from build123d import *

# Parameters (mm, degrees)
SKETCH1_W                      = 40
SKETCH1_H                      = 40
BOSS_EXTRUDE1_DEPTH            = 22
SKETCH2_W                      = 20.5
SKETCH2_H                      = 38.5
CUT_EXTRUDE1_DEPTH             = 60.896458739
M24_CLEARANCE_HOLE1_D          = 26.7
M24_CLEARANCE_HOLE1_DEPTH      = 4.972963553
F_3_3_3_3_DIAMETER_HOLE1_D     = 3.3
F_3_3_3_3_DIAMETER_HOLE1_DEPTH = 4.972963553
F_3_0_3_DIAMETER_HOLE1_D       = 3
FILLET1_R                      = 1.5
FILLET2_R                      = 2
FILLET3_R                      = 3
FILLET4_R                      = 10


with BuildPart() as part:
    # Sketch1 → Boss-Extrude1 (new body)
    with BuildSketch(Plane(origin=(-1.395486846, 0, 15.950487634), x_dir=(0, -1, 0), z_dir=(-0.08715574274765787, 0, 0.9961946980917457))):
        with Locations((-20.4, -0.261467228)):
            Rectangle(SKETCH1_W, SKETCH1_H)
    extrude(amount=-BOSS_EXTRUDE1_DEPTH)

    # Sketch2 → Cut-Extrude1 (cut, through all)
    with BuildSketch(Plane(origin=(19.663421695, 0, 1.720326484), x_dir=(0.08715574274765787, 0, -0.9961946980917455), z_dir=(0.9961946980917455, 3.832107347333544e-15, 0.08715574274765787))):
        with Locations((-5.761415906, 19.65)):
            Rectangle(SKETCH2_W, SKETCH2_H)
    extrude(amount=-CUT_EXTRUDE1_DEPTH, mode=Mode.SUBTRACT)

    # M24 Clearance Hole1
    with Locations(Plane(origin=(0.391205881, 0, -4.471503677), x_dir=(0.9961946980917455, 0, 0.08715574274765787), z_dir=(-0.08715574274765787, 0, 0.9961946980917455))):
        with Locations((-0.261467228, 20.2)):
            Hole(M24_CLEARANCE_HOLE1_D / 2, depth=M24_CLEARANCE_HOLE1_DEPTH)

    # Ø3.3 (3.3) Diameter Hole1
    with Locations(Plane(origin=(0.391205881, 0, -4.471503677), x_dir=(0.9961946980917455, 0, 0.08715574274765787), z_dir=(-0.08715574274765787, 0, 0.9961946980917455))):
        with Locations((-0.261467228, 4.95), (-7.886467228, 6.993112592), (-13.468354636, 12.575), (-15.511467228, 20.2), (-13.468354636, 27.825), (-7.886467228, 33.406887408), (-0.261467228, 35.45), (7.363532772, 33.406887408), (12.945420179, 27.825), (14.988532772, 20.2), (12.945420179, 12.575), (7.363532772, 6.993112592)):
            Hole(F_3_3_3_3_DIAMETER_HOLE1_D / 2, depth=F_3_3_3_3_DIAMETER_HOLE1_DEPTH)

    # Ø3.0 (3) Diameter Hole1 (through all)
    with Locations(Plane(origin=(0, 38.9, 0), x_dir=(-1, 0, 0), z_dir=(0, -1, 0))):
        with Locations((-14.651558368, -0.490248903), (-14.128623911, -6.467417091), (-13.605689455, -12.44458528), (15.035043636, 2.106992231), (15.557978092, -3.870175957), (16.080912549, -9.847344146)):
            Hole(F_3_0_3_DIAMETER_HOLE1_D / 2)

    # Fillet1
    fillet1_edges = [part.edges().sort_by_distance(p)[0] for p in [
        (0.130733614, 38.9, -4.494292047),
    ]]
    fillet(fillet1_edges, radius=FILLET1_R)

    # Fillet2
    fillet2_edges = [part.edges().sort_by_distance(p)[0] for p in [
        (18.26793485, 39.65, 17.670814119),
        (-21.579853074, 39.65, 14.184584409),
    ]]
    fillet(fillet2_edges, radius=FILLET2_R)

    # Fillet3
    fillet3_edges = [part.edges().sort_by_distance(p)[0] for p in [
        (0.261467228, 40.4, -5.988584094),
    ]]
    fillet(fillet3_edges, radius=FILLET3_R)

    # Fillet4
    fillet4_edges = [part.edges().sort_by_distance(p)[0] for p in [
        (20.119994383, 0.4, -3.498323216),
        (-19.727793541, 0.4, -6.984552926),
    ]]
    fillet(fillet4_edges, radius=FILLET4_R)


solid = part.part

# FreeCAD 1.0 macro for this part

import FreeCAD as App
import Part
import Sketcher

V = App.Vector


def edges_at(feature, points):
    """Names of the edges that pass closest to the given points."""
    edges = feature.Shape.Edges
    near = lambda p: min(range(len(edges)), key=lambda i: edges[i].distToShape(Part.Vertex(*p))[0])
    return sorted({f"Edge{near(p) + 1}" for p in points})

doc = App.newDocument("Part")
params = doc.addObject("Spreadsheet::Sheet", "Params")
for row, (alias, value) in enumerate([
    ("sketch1_width", "40 mm"),
    ("pad1_length", "22 mm"),
    ("sketch2_width", "20.5 mm"),
    ("sketch2_height", "38.5 mm"),
    ("sketch3_diameter", "26.7 mm"),
    ("hole_diameter", "26.7 mm"),
    ("hole_depth", "4.972964 mm"),
    ("sketch4_diameter", "3.3 mm"),
    ("hole2_diameter", "3.3 mm"),
    ("hole2_depth", "4.972964 mm"),
    ("sketch5_diameter", "3 mm"),
    ("hole3_diameter", "3 mm"),
    ("fillet_radius", "1.5 mm"),
    ("fillet2_radius", "2 mm"),
    ("fillet3_radius", "3 mm"),
    ("fillet4_radius", "10 mm"),
], start=1):
    params.set(f"A{row}", alias)
    params.set(f"B{row}", "=" + value)
    params.setAlias(f"B{row}", alias)

body = doc.addObject("PartDesign::Body", "Body")

# Sketch on an angled plane
sketch1 = doc.addObject("Sketcher::SketchObject", "Sketch")
body.addObject(sketch1)
sketch1.Placement = App.Placement(V(-1.395487, 0, 15.950488), App.Rotation(V(0, -1, 0), V(0.996194698, 0, 0.087155743), V(-0.087155743, 0, 0.996194698), "ZXY"))
sketch1.addGeometry(Part.LineSegment(V(-40, 20, 0), V(-40, -20, 0)), False)
sketch1.addGeometry(Part.LineSegment(V(-40, -20, 0), V(0, -20, 0)), False)
sketch1.addGeometry(Part.LineSegment(V(0, -20, 0), V(0, 20, 0)), False)
sketch1.addGeometry(Part.LineSegment(V(0, 20, 0), V(-40, 20, 0)), False)
sketch1.addConstraint(Sketcher.Constraint("Coincident", 0, 2, 1, 1))
sketch1.addConstraint(Sketcher.Constraint("Coincident", 1, 2, 2, 1))
sketch1.addConstraint(Sketcher.Constraint("Coincident", 2, 2, 3, 1))
sketch1.addConstraint(Sketcher.Constraint("Coincident", 3, 2, 0, 1))
sketch1.addConstraint(Sketcher.Constraint("Vertical", 0))
sketch1.addConstraint(Sketcher.Constraint("Horizontal", 1))
sketch1.addConstraint(Sketcher.Constraint("Vertical", 2))
sketch1.addConstraint(Sketcher.Constraint("Horizontal", 3))
sketch1.addConstraint(Sketcher.Constraint("Equal", 3, 0))
sketch1.addConstraint(Sketcher.Constraint("DistanceX", 1, 1, 1, 2, 40.0))
sketch1.addConstraint(Sketcher.Constraint("DistanceX", 0, 2, -1, 1, 40.4))
sketch1.addConstraint(Sketcher.Constraint("DistanceY", 0, 2, -1, 1, 20.261467))
sketch1.setExpression("Constraints[9]", "Params.sketch1_width")
pad1 = doc.addObject("PartDesign::Pad", "Pad")
body.addObject(pad1)
pad1.Profile = sketch1
pad1.setExpression("Length", "Params.pad1_length")
pad1.Reversed = True

# Sketch on an angled plane
sketch2 = doc.addObject("Sketcher::SketchObject", "Sketch001")
body.addObject(sketch2)
sketch2.Placement = App.Placement(V(19.663422, 0, 1.720326), App.Rotation(V(0.087155743, 0, -0.996194698), V(0, 1, 0), V(0.996194698, 0, 0.087155743), "ZXY"))
sketch2.addGeometry(Part.LineSegment(V(-16, 39, 0), V(-16, 0, 0)), False)
sketch2.addGeometry(Part.LineSegment(V(-16, 0, 0), V(4, 0, 0)), False)
sketch2.addGeometry(Part.LineSegment(V(4, 0, 0), V(4, 39, 0)), False)
sketch2.addGeometry(Part.LineSegment(V(4, 39, 0), V(-16, 39, 0)), False)
sketch2.addConstraint(Sketcher.Constraint("Coincident", 0, 2, 1, 1))
sketch2.addConstraint(Sketcher.Constraint("Coincident", 1, 2, 2, 1))
sketch2.addConstraint(Sketcher.Constraint("Coincident", 2, 2, 3, 1))
sketch2.addConstraint(Sketcher.Constraint("Coincident", 3, 2, 0, 1))
sketch2.addConstraint(Sketcher.Constraint("Vertical", 0))
sketch2.addConstraint(Sketcher.Constraint("Horizontal", 1))
sketch2.addConstraint(Sketcher.Constraint("Vertical", 2))
sketch2.addConstraint(Sketcher.Constraint("Horizontal", 3))
sketch2.addConstraint(Sketcher.Constraint("DistanceX", 1, 1, 1, 2, 20.5))
sketch2.addConstraint(Sketcher.Constraint("DistanceY", 0, 2, 0, 1, 38.5))
sketch2.addConstraint(Sketcher.Constraint("DistanceY", -1, 1, 0, 2, 0.4))
sketch2.addConstraint(Sketcher.Constraint("DistanceX", 0, 2, -1, 1, 16.011416))
sketch2.setExpression("Constraints[8]", "Params.sketch2_width")
sketch2.setExpression("Constraints[9]", "Params.sketch2_height")
pocket1 = doc.addObject("PartDesign::Pocket", "Pocket")
body.addObject(pocket1)
pocket1.Profile = sketch2
pocket1.Type = "ThroughAll"

# Sketch on an angled plane
sketch3 = doc.addObject("Sketcher::SketchObject", "Sketch002")
body.addObject(sketch3)
sketch3.Placement = App.Placement(V(0.391206, 0, -4.471504), App.Rotation(V(0.996194698, 0, 0.087155743), V(0, 1, 0), V(-0.087155743, 0, 0.996194698), "ZXY"))
sketch3.addGeometry(Part.Circle(V(0, 20, 0), V(0, 0, 1), 13), False)
sketch3.addConstraint(Sketcher.Constraint("Diameter", 0, 26.7))
sketch3.addConstraint(Sketcher.Constraint("DistanceY", -1, 1, 0, 3, 20.2))
sketch3.addConstraint(Sketcher.Constraint("DistanceX", 0, 3, -1, 1, 0.261467))
sketch3.setExpression("Constraints[0]", "Params.sketch3_diameter")
doc.recompute()
hole = doc.addObject("PartDesign::Hole", "Hole")
body.addObject(hole)
hole.Profile = sketch3
hole.ThreadType = "None"
hole.setExpression("Diameter", "Params.hole_diameter")
hole.DepthType = "Dimension"
hole.setExpression("Depth", "Params.hole_depth")
hole.DrillPoint = "Flat"

# Sketch on an angled plane
sketch4 = doc.addObject("Sketcher::SketchObject", "Sketch003")
body.addObject(sketch4)
sketch4.Placement = App.Placement(V(0.391206, 0, -4.471504), App.Rotation(V(0.996194698, 0, 0.087155743), V(0, 1, 0), V(-0.087155743, 0, 0.996194698), "ZXY"))
sketch4.addGeometry(Part.Circle(V(-0.3, 4.9, 0), V(0, 0, 1), 1.6), False)
sketch4.addGeometry(Part.Circle(V(-7.9, 7, 0), V(0, 0, 1), 1.6), False)
sketch4.addGeometry(Part.Circle(V(-13.5, 12.6, 0), V(0, 0, 1), 1.6), False)
sketch4.addGeometry(Part.Circle(V(-15.5, 20.2, 0), V(0, 0, 1), 1.6), False)
sketch4.addGeometry(Part.Circle(V(-13.5, 27.8, 0), V(0, 0, 1), 1.6), False)
sketch4.addGeometry(Part.Circle(V(-7.9, 33.4, 0), V(0, 0, 1), 1.6), False)
sketch4.addGeometry(Part.Circle(V(-0.3, 35.4, 0), V(0, 0, 1), 1.6), False)
sketch4.addGeometry(Part.Circle(V(7.4, 33.4, 0), V(0, 0, 1), 1.6), False)
sketch4.addGeometry(Part.Circle(V(12.9, 27.8, 0), V(0, 0, 1), 1.6), False)
sketch4.addGeometry(Part.Circle(V(15, 20.2, 0), V(0, 0, 1), 1.6), False)
sketch4.addGeometry(Part.Circle(V(12.9, 12.6, 0), V(0, 0, 1), 1.6), False)
sketch4.addGeometry(Part.Circle(V(7.4, 7, 0), V(0, 0, 1), 1.6), False)
sketch4.addConstraint(Sketcher.Constraint("Equal", 0, 1))
sketch4.addConstraint(Sketcher.Constraint("Equal", 1, 2))
sketch4.addConstraint(Sketcher.Constraint("Equal", 2, 3))
sketch4.addConstraint(Sketcher.Constraint("Equal", 3, 4))
sketch4.addConstraint(Sketcher.Constraint("Equal", 4, 5))
sketch4.addConstraint(Sketcher.Constraint("Equal", 5, 6))
sketch4.addConstraint(Sketcher.Constraint("Equal", 6, 7))
sketch4.addConstraint(Sketcher.Constraint("Equal", 7, 8))
sketch4.addConstraint(Sketcher.Constraint("Equal", 8, 9))
sketch4.addConstraint(Sketcher.Constraint("Equal", 9, 10))
sketch4.addConstraint(Sketcher.Constraint("Equal", 10, 11))
sketch4.addConstraint(Sketcher.Constraint("Horizontal", 5, 3, 7, 3))
sketch4.addConstraint(Sketcher.Constraint("Horizontal", 4, 3, 8, 3))
sketch4.addConstraint(Sketcher.Constraint("Horizontal", 3, 3, 9, 3))
sketch4.addConstraint(Sketcher.Constraint("Horizontal", 2, 3, 10, 3))
sketch4.addConstraint(Sketcher.Constraint("Horizontal", 1, 3, 11, 3))
sketch4.addConstraint(Sketcher.Constraint("Vertical", 2, 3, 4, 3))
sketch4.addConstraint(Sketcher.Constraint("Vertical", 1, 3, 5, 3))
sketch4.addConstraint(Sketcher.Constraint("Vertical", 0, 3, 6, 3))
sketch4.addConstraint(Sketcher.Constraint("Vertical", 8, 3, 10, 3))
sketch4.addConstraint(Sketcher.Constraint("Vertical", 7, 3, 11, 3))
sketch4.addConstraint(Sketcher.Constraint("Diameter", 0, 3.3))
sketch4.addConstraint(Sketcher.Constraint("DistanceY", -1, 1, 3, 3, 20.2))
sketch4.addConstraint(Sketcher.Constraint("DistanceY", -1, 1, 0, 3, 4.95))
sketch4.addConstraint(Sketcher.Constraint("DistanceY", -1, 1, 6, 3, 35.45))
sketch4.addConstraint(Sketcher.Constraint("DistanceX", 3, 3, 0, 3, 15.25))
sketch4.addConstraint(Sketcher.Constraint("DistanceY", 2, 3, 4, 3, 15.25))
sketch4.addConstraint(Sketcher.Constraint("DistanceX", 5, 3, 7, 3, 15.25))
sketch4.addConstraint(Sketcher.Constraint("DistanceX", 0, 3, 9, 3, 15.25))
sketch4.addConstraint(Sketcher.Constraint("DistanceY", -1, 1, 2, 3, 12.575))
sketch4.addConstraint(Sketcher.Constraint("DistanceX", 1, 3, 0, 3, 7.625))
sketch4.addConstraint(Sketcher.Constraint("DistanceX", -1, 1, 8, 3, 12.94542))
sketch4.addConstraint(Sketcher.Constraint("DistanceX", 0, 3, -1, 1, 0.261467))
sketch4.addConstraint(Sketcher.Constraint("DistanceY", -1, 1, 1, 3, 6.993113))
sketch4.addConstraint(Sketcher.Constraint("DistanceX", 2, 3, -1, 1, 13.468355))
sketch4.addConstraint(Sketcher.Constraint("DistanceY", -1, 1, 5, 3, 33.406887))
sketch4.setExpression("Constraints[21]", "Params.sketch4_diameter")
doc.recompute()
hole2 = doc.addObject("PartDesign::Hole", "Hole001")
body.addObject(hole2)
hole2.Profile = sketch4
hole2.ThreadType = "None"
hole2.setExpression("Diameter", "Params.hole2_diameter")
hole2.DepthType = "Dimension"
hole2.setExpression("Depth", "Params.hole2_depth")
hole2.DrillPoint = "Flat"

# Sketch on XZ plane
sketch5 = doc.addObject("Sketcher::SketchObject", "Sketch004")
body.addObject(sketch5)
sketch5.AttachmentSupport = (doc.XZ_Plane, [""])
sketch5.MapMode = "FlatFace"
sketch5.AttachmentOffset = App.Placement(V(0, 0, -38.9), App.Rotation())
sketch5.addGeometry(Part.Circle(V(14.7, 0.5, 0), V(0, 0, 1), 1.5), False)
sketch5.addGeometry(Part.Circle(V(14.1, 6.5, 0), V(0, 0, 1), 1.5), False)
sketch5.addGeometry(Part.Circle(V(13.6, 12.4, 0), V(0, 0, 1), 1.5), False)
sketch5.addGeometry(Part.Circle(V(-15, -2.1, 0), V(0, 0, 1), 1.5), False)
sketch5.addGeometry(Part.Circle(V(-15.6, 3.9, 0), V(0, 0, 1), 1.5), False)
sketch5.addGeometry(Part.Circle(V(-16.1, 9.8, 0), V(0, 0, 1), 1.5), False)
sketch5.addConstraint(Sketcher.Constraint("Equal", 0, 1))
sketch5.addConstraint(Sketcher.Constraint("Equal", 1, 2))
sketch5.addConstraint(Sketcher.Constraint("Equal", 2, 3))
sketch5.addConstraint(Sketcher.Constraint("Equal", 3, 4))
sketch5.addConstraint(Sketcher.Constraint("Equal", 4, 5))
sketch5.addConstraint(Sketcher.Constraint("Diameter", 0, 3.0))
sketch5.addConstraint(Sketcher.Constraint("DistanceX", -1, 1, 0, 3, 14.651558))
sketch5.addConstraint(Sketcher.Constraint("DistanceY", -1, 1, 0, 3, 0.490249))
sketch5.addConstraint(Sketcher.Constraint("DistanceX", -1, 1, 2, 3, 13.605689))
sketch5.addConstraint(Sketcher.Constraint("DistanceX", 4, 3, -1, 1, 15.557978))
sketch5.addConstraint(Sketcher.Constraint("DistanceY", 0, 3, 1, 3, 5.977168))
sketch5.addConstraint(Sketcher.Constraint("DistanceY", 1, 3, 2, 3, 5.977168))
sketch5.addConstraint(Sketcher.Constraint("DistanceY", 3, 3, 0, 3, 2.597241))
sketch5.addConstraint(Sketcher.Constraint("DistanceY", 3, 3, 4, 3, 5.977168))
sketch5.addConstraint(Sketcher.Constraint("DistanceY", 4, 3, 5, 3, 5.977168))
sketch5.addConstraint(Sketcher.Constraint("DistanceX", 5, 3, 3, 3, 1.045869))
sketch5.addConstraint(Sketcher.Constraint("DistanceX", 5, 3, 0, 3, 30.732471))
sketch5.addConstraint(Sketcher.Constraint("DistanceX", -1, 1, 1, 3, 14.128624))
sketch5.setExpression("Constraints[5]", "Params.sketch5_diameter")
doc.recompute()
hole3 = doc.addObject("PartDesign::Hole", "Hole002")
body.addObject(hole3)
hole3.Profile = sketch5
hole3.ThreadType = "None"
hole3.setExpression("Diameter", "Params.hole3_diameter")
hole3.DepthType = "ThroughAll"
doc.recompute()

fillet = doc.addObject("PartDesign::Fillet", "Fillet")
body.addObject(fillet)
fillet.Base = (hole3, edges_at(hole3, [(0.131, 38.9, -4.494)]))
fillet.setExpression("Radius", "Params.fillet_radius")
doc.recompute()

fillet2 = doc.addObject("PartDesign::Fillet", "Fillet001")
body.addObject(fillet2)
fillet2.Base = (fillet, edges_at(fillet, [(18.268, 39.65, 17.671), (-21.58, 39.65, 14.185)]))
fillet2.setExpression("Radius", "Params.fillet2_radius")
doc.recompute()

fillet3 = doc.addObject("PartDesign::Fillet", "Fillet002")
body.addObject(fillet3)
fillet3.Base = (fillet2, edges_at(fillet2, [(0.261, 40.4, -5.989)]))
fillet3.setExpression("Radius", "Params.fillet3_radius")
doc.recompute()

fillet4 = doc.addObject("PartDesign::Fillet", "Fillet003")
body.addObject(fillet4)
fillet4.Base = (fillet3, edges_at(fillet3, [(20.12, 0.4, -3.498), (-19.728, 0.4, -6.985)]))
fillet4.setExpression("Radius", "Params.fillet4_radius")

doc.recompute()
